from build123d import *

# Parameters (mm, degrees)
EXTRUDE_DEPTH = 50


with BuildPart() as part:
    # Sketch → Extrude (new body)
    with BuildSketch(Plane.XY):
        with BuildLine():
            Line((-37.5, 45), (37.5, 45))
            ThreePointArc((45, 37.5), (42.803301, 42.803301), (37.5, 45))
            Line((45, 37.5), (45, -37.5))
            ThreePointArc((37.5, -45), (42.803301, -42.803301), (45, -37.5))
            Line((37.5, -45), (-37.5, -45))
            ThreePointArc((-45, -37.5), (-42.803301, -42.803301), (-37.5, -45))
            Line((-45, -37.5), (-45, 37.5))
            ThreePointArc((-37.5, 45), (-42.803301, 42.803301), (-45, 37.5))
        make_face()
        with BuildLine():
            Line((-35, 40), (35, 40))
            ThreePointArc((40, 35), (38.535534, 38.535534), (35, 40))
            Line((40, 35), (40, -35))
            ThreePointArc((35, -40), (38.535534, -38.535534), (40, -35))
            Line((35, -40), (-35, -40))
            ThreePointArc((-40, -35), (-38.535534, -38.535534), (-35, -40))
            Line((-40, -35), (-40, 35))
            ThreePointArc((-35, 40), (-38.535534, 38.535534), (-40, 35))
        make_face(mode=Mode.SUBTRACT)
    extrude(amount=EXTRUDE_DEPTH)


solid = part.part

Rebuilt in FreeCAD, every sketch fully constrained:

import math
import FreeCAD as App
import Part
import Sketcher
Q = App.Units.Quantity

doc = App.newDocument("Part")
body = doc.addObject("PartDesign::Body", "Body")

sketch1 = doc.addObject("Sketcher::SketchObject", "Sketch")
body.addObject(sketch1)
sketch1.AttachmentSupport = (doc.XY_Plane, [""])
sketch1.MapMode = "FlatFace"
sketch1.addGeometry([
    Part.LineSegment(App.Vector(37.5, 45, 0), App.Vector(-37.5, 45, 0)),
    Part.ArcOfCircle(Part.Circle(App.Vector(-37.5, 37.5, 0), App.Vector(0, 0, 1), 7.5), math.radians(89.999996), math.radians(180.000004)),
    Part.LineSegment(App.Vector(-45, 37.5, 0), App.Vector(-45, -37.5, 0)),
    Part.ArcOfCircle(Part.Circle(App.Vector(-37.5, -37.5, 0), App.Vector(0, 0, 1), 7.5), math.radians(179.999996), math.radians(270.000004)),
    Part.LineSegment(App.Vector(-37.5, -45, 0), App.Vector(37.5, -45, 0)),
    Part.ArcOfCircle(Part.Circle(App.Vector(37.5, -37.5, 0), App.Vector(0, 0, 1), 7.5), math.radians(-90.000004), math.radians(0.000004)),
    Part.LineSegment(App.Vector(45, -37.5, 0), App.Vector(45, 37.5, 0)),
    Part.ArcOfCircle(Part.Circle(App.Vector(37.5, 37.5, 0), App.Vector(0, 0, 1), 7.5), math.radians(-0.000004), math.radians(90.000004)),
    Part.LineSegment(App.Vector(-35, 40, 0), App.Vector(35, 40, 0)),
    Part.ArcOfCircle(Part.Circle(App.Vector(35, 35, 0), App.Vector(0, 0, 1), 5), math.radians(-0.000004), math.radians(90.000004)),
    Part.LineSegment(App.Vector(40, 35, 0), App.Vector(40, -35, 0)),
    Part.ArcOfCircle(Part.Circle(App.Vector(35, -35, 0), App.Vector(0, 0, 1), 5), math.radians(-90.000004), math.radians(0.000004)),
    Part.LineSegment(App.Vector(35, -40, 0), App.Vector(-35, -40, 0)),
    Part.ArcOfCircle(Part.Circle(App.Vector(-35, -35, 0), App.Vector(0, 0, 1), 5), math.radians(179.999996), math.radians(270.000004)),
    Part.LineSegment(App.Vector(-40, -35, 0), App.Vector(-40, 35, 0)),
    Part.ArcOfCircle(Part.Circle(App.Vector(-35, 35, 0), App.Vector(0, 0, 1), 5), math.radians(89.999996), math.radians(180.000004)),
], False)
sketch1.addConstraint([
    Sketcher.Constraint("Tangent", 0, 2, 1, 1),
    Sketcher.Constraint("Tangent", 1, 2, 2, 1),
    Sketcher.Constraint("Tangent", 2, 2, 3, 1),
    Sketcher.Constraint("Tangent", 3, 2, 4, 1),
    Sketcher.Constraint("Tangent", 4, 2, 5, 1),
    Sketcher.Constraint("Tangent", 5, 2, 6, 1),
    Sketcher.Constraint("Tangent", 6, 2, 7, 1),
    Sketcher.Constraint("Tangent", 7, 2, 0, 1),
    Sketcher.Constraint("Tangent", 8, 2, 9, 2),
    Sketcher.Constraint("Tangent", 9, 1, 10, 1),
    Sketcher.Constraint("Tangent", 10, 2, 11, 2),
    Sketcher.Constraint("Tangent", 11, 1, 12, 1),
    Sketcher.Constraint("Tangent", 12, 2, 13, 2),
    Sketcher.Constraint("Tangent", 13, 1, 14, 1),
    Sketcher.Constraint("Tangent", 14, 2, 15, 2),
    Sketcher.Constraint("Tangent", 15, 1, 8, 1),
    Sketcher.Constraint("Horizontal", 0),
    Sketcher.Constraint("Vertical", 2),
    Sketcher.Constraint("Horizontal", 4),
    Sketcher.Constraint("Vertical", 6),
    Sketcher.Constraint("Horizontal", 8),
    Sketcher.Constraint("Vertical", 10),
    Sketcher.Constraint("Horizontal", 12),
    Sketcher.Constraint("Vertical", 14),
    Sketcher.Constraint("Equal", 1, 3),
    Sketcher.Constraint("Equal", 3, 5),
    Sketcher.Constraint("Equal", 5, 7),
    Sketcher.Constraint("Equal", 9, 11),
    Sketcher.Constraint("Equal", 11, 13),
    Sketcher.Constraint("Equal", 13, 15),
    Sketcher.Constraint("Symmetric", 1, 3, 5, 3, -1, 1),
    Sketcher.Constraint("Symmetric", 9, 3, 13, 3, -1, 1),
    Sketcher.Constraint("Equal", 4, 2),
    Sketcher.Constraint("Equal", 12, 10),
    Sketcher.Constraint("Radius", 9, Q("5 mm")),
    Sketcher.Constraint("Radius", 1, Q("7.5 mm")),
    Sketcher.Constraint("DistanceX", 0, 2, 0, 1, Q("75 mm")),
    Sketcher.Constraint("DistanceX", 8, 1, 8, 2, Q("70 mm")),
])
pad1 = doc.addObject("PartDesign::Pad", "Pad")
body.addObject(pad1)
pad1.Profile = sketch1
pad1.Length = 50

doc.recompute()
